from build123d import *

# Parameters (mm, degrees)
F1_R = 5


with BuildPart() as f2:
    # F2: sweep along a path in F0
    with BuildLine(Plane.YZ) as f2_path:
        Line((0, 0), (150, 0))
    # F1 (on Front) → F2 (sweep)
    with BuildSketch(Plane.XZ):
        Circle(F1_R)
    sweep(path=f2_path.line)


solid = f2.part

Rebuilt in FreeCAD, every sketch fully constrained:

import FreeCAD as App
import Part
import Sketcher

V = App.Vector
Q = App.Units.Quantity

doc = App.newDocument("Part")
params = doc.addObject("Spreadsheet::Sheet", "Params")
for row, (alias, value) in enumerate([
    ("sketch1_diameter", "10 mm"),
    ("sketch2_height", "150 mm"),
], start=1):
    params.set(f"A{row}", alias)
    params.set(f"B{row}", "=" + value)
    params.setAlias(f"B{row}", alias)

body = doc.addObject("PartDesign::Body", "Body")

sketch1 = body.newObject("Sketcher::SketchObject", "Sketch")
sketch1.AttachmentSupport = (doc.getObject("XZ_Plane"), [""])
sketch1.MapMode = "FlatFace"
sketch1.addGeometry(Part.Circle(V(0, 0, 0), V(0, 0, 1), 5), False)
sketch1.addConstraint(Sketcher.Constraint("Coincident", 0, 3, -1, 1))
sketch1.addConstraint(Sketcher.Constraint("Diameter", 0, Q("10 mm")))
sketch1.setExpression("Constraints[1]", "Params.sketch1_diameter")

sketch2 = body.newObject("Sketcher::SketchObject", "Sketch001")
sketch2.AttachmentSupport = (doc.getObject("XY_Plane"), [""])
sketch2.MapMode = "FlatFace"
sketch2.addGeometry(Part.LineSegment(V(0, 0, 0), V(0, 150, 0)), False)
sketch2.addConstraint(Sketcher.Constraint("Vertical", 0))
sketch2.addConstraint(Sketcher.Constraint("Coincident", 0, 1, -1, 1))
sketch2.addConstraint(Sketcher.Constraint("DistanceY", 0, 1, 0, 2, Q("150 mm")))
sketch2.setExpression("Constraints[2]", "Params.sketch2_height")
doc.recompute()

additivepipe = body.newObject("PartDesign::AdditivePipe", "AdditivePipe")
additivepipe.Profile = sketch1
additivepipe.Spine = (sketch2, ["Edge1"])

doc.recompute()
